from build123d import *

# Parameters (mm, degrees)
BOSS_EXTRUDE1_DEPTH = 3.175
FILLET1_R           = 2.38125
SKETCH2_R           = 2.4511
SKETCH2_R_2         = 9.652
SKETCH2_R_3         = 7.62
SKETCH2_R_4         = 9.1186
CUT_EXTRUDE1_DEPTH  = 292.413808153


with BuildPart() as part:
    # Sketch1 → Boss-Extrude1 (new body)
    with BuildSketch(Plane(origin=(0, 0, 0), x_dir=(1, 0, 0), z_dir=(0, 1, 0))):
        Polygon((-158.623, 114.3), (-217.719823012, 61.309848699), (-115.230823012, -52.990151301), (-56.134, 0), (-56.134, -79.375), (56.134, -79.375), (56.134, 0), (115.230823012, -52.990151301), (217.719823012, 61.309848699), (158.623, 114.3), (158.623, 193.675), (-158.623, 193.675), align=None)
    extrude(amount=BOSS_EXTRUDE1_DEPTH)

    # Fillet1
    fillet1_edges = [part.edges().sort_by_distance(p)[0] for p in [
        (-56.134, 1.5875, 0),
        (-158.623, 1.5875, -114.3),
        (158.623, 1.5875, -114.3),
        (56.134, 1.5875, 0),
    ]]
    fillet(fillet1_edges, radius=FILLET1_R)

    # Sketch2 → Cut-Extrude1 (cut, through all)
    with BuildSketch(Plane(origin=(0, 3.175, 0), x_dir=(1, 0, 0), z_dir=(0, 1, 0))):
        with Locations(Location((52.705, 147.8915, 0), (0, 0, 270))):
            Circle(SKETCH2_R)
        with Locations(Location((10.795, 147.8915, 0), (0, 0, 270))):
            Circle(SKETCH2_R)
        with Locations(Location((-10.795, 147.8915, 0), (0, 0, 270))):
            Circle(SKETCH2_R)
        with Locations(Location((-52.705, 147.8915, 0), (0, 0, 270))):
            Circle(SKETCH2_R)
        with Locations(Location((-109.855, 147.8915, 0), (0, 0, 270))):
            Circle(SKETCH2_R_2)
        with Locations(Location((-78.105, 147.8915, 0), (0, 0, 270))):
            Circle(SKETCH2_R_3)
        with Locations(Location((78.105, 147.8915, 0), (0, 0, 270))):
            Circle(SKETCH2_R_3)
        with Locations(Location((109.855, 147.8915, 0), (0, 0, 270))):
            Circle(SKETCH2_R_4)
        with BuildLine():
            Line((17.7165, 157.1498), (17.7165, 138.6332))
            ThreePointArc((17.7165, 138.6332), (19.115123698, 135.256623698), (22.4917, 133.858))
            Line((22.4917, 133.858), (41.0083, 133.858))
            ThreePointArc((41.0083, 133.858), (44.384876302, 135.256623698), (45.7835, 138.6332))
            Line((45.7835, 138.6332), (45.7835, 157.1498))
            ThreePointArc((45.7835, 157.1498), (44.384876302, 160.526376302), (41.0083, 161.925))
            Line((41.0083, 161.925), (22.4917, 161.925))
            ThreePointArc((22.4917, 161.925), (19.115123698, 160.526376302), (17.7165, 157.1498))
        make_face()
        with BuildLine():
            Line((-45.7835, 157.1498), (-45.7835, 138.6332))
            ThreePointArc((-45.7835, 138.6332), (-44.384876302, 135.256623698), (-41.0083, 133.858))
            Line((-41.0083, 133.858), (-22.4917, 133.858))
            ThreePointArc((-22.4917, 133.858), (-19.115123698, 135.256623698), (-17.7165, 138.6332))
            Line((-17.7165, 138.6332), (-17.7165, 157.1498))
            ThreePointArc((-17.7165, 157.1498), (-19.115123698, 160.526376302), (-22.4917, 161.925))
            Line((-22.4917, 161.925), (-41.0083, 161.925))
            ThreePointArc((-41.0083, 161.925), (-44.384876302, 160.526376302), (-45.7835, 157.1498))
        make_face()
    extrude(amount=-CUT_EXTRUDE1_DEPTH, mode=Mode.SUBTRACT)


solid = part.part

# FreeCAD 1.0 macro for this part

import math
import FreeCAD as App
import Part
import Sketcher

V = App.Vector
Q = App.Units.Quantity


def edges_at(feature, points):
    """Names of the edges that pass closest to the given points."""
    edges = feature.Shape.Edges
    near = lambda p: min(range(len(edges)), key=lambda i: edges[i].distToShape(Part.Vertex(*p))[0])
    return sorted({f"Edge{near(p) + 1}" for p in points})

doc = App.newDocument("Part")
body = doc.addObject("PartDesign::Body", "Body")

sketch1 = doc.addObject("Sketcher::SketchObject", "Sketch")
body.addObject(sketch1)
sketch1.AttachmentSupport = (doc.XZ_Plane, [""])
sketch1.MapMode = "FlatFace"
sketch1.addGeometry(Part.LineSegment(V(-159, -114, 0), V(-218, -61, 0)), False)
sketch1.addGeometry(Part.LineSegment(V(-218, -61, 0), V(-115, 53, 0)), False)
sketch1.addGeometry(Part.LineSegment(V(-115, 53, 0), V(-56, 0, 0)), False)
sketch1.addGeometry(Part.LineSegment(V(-56, 0, 0), V(-56, 79, 0)), False)
sketch1.addGeometry(Part.LineSegment(V(-56, 79, 0), V(56, 79, 0)), False)
sketch1.addGeometry(Part.LineSegment(V(56, 79, 0), V(56, 0, 0)), False)
sketch1.addGeometry(Part.LineSegment(V(56, 0, 0), V(115, 53, 0)), False)
sketch1.addGeometry(Part.LineSegment(V(115, 53, 0), V(218, -61, 0)), False)
sketch1.addGeometry(Part.LineSegment(V(218, -61, 0), V(159, -114, 0)), False)
sketch1.addGeometry(Part.LineSegment(V(159, -114, 0), V(159, -194, 0)), False)
sketch1.addGeometry(Part.LineSegment(V(159, -194, 0), V(-159, -194, 0)), False)
sketch1.addGeometry(Part.LineSegment(V(-159, -194, 0), V(-159, -114, 0)), False)
sketch1.addConstraint(Sketcher.Constraint("Coincident", 0, 2, 1, 1))
sketch1.addConstraint(Sketcher.Constraint("Coincident", 1, 2, 2, 1))
sketch1.addConstraint(Sketcher.Constraint("Coincident", 2, 2, 3, 1))
sketch1.addConstraint(Sketcher.Constraint("Coincident", 3, 2, 4, 1))
sketch1.addConstraint(Sketcher.Constraint("Coincident", 4, 2, 5, 1))
sketch1.addConstraint(Sketcher.Constraint("Coincident", 5, 2, 6, 1))
sketch1.addConstraint(Sketcher.Constraint("Coincident", 6, 2, 7, 1))
sketch1.addConstraint(Sketcher.Constraint("Coincident", 7, 2, 8, 1))
sketch1.addConstraint(Sketcher.Constraint("Coincident", 8, 2, 9, 1))
sketch1.addConstraint(Sketcher.Constraint("Coincident", 9, 2, 10, 1))
sketch1.addConstraint(Sketcher.Constraint("Coincident", 10, 2, 11, 1))
sketch1.addConstraint(Sketcher.Constraint("Coincident", 11, 2, 0, 1))
sketch1.addConstraint(Sketcher.Constraint("Vertical", 3))
sketch1.addConstraint(Sketcher.Constraint("Horizontal", 4))
sketch1.addConstraint(Sketcher.Constraint("Vertical", 5))
sketch1.addConstraint(Sketcher.Constraint("Vertical", 9))
sketch1.addConstraint(Sketcher.Constraint("Horizontal", 10))
sketch1.addConstraint(Sketcher.Constraint("Vertical", 11))
sketch1.addConstraint(Sketcher.Constraint("Symmetric", 2, 2, 5, 2, -1, 1))
sketch1.addConstraint(Sketcher.Constraint("Symmetric", 1, 2, 6, 2, -2))
sketch1.addConstraint(Sketcher.Constraint("Symmetric", 0, 2, 7, 2, -2))
sketch1.addConstraint(Sketcher.Constraint("Symmetric", 8, 2, 11, 2, -2))
sketch1.addConstraint(Sketcher.Constraint("PointOnObject", 2, 2, -1))
sketch1.addConstraint(Sketcher.Constraint("Perpendicular", 0, 1))
sketch1.addConstraint(Sketcher.Constraint("Perpendicular", 1, 2))
sketch1.addConstraint(Sketcher.Constraint("Equal", 5, 9))
sketch1.addConstraint(Sketcher.Constraint("Equal", 0, 2))
sketch1.addConstraint(Sketcher.Constraint("DistanceX", 4, 1, 4, 2, Q("4.42 in")))
sketch1.addConstraint(Sketcher.Constraint("DistanceX", 10, 2, 10, 1, Q("12.49 in")))
sketch1.addConstraint(Sketcher.Constraint("DistanceY", 8, 2, -1, 1, Q("4.5 in")))
sketch1.addConstraint(Sketcher.Constraint("DistanceY", 3, 1, 3, 2, Q("3.125 in")))
sketch1.addConstraint(Sketcher.Constraint("Distance", 0, Q("3.125 in")))
pad1 = doc.addObject("PartDesign::Pad", "Pad")
body.addObject(pad1)
pad1.Profile = sketch1
pad1.Length = Q("0.125 in")
pad1.Reversed = True
doc.recompute()

fillet = doc.addObject("PartDesign::Fillet", "Fillet")
body.addObject(fillet)
fillet.Base = (pad1, edges_at(pad1, [
    (-56.134, 1.587, 0),
    (-158.623, 1.587, -114.3),
    (158.623, 1.587, -114.3),
    (56.134, 1.587, 0),
]))
fillet.Radius = Q("0.09375 in")

sketch2 = doc.addObject("Sketcher::SketchObject", "Sketch001")
body.addObject(sketch2)
sketch2.AttachmentSupport = (doc.XZ_Plane, [""])
sketch2.MapMode = "FlatFace"
sketch2.AttachmentOffset = App.Placement(V(0, 0, -0.125 * 25.4), App.Rotation())
sketch2.addGeometry(Part.Circle(V(52.7, -147.9, 0), V(0, 0, 1), 2.5), False)
sketch2.addGeometry(Part.Circle(V(10.8, -147.9, 0), V(0, 0, 1), 2.5), False)
sketch2.addGeometry(Part.Circle(V(-10.8, -147.9, 0), V(0, 0, 1), 2.5), False)
sketch2.addGeometry(Part.Circle(V(-52.7, -147.9, 0), V(0, 0, 1), 2.5), False)
sketch2.addGeometry(Part.Circle(V(-109.9, -147.9, 0), V(0, 0, 1), 9.7), False)
sketch2.addGeometry(Part.Circle(V(-78.1, -147.9, 0), V(0, 0, 1), 7.6), False)
sketch2.addGeometry(Part.Circle(V(78.1, -147.9, 0), V(0, 0, 1), 7.6), False)
sketch2.addGeometry(Part.Circle(V(109.9, -147.9, 0), V(0, 0, 1), 9.1), False)
sketch2.addGeometry(Part.LineSegment(V(17.7, -157.1, 0), V(17.7, -138.6, 0)), False)
sketch2.addGeometry(Part.ArcOfCircle(Part.Circle(V(22.5, -138.6, 0), V(0, 0, 1), 4.8), math.radians(90), math.radians(180)), False)
sketch2.addGeometry(Part.LineSegment(V(22.5, -133.9, 0), V(41, -133.9, 0)), False)
sketch2.addGeometry(Part.ArcOfCircle(Part.Circle(V(41, -138.6, 0), V(0, 0, 1), 4.8), math.radians(0), math.radians(90)), False)
sketch2.addGeometry(Part.LineSegment(V(45.8, -138.6, 0), V(45.8, -157.1, 0)), False)
sketch2.addGeometry(Part.ArcOfCircle(Part.Circle(V(41, -157.1, 0), V(0, 0, 1), 4.8), math.radians(-90), math.radians(0)), False)
sketch2.addGeometry(Part.LineSegment(V(41, -161.9, 0), V(22.5, -161.9, 0)), False)
sketch2.addGeometry(Part.ArcOfCircle(Part.Circle(V(22.5, -157.1, 0), V(0, 0, 1), 4.8), math.radians(180), math.radians(270)), False)
sketch2.addGeometry(Part.LineSegment(V(-45.8, -157.1, 0), V(-45.8, -138.6, 0)), False)
sketch2.addGeometry(Part.ArcOfCircle(Part.Circle(V(-41, -138.6, 0), V(0, 0, 1), 4.8), math.radians(90), math.radians(180)), False)
sketch2.addGeometry(Part.LineSegment(V(-41, -133.9, 0), V(-22.5, -133.9, 0)), False)
sketch2.addGeometry(Part.ArcOfCircle(Part.Circle(V(-22.5, -138.6, 0), V(0, 0, 1), 4.8), math.radians(0), math.radians(90)), False)
sketch2.addGeometry(Part.LineSegment(V(-17.7, -138.6, 0), V(-17.7, -157.1, 0)), False)
sketch2.addGeometry(Part.ArcOfCircle(Part.Circle(V(-22.5, -157.1, 0), V(0, 0, 1), 4.8), math.radians(-90), math.radians(0)), False)
sketch2.addGeometry(Part.LineSegment(V(-22.5, -161.9, 0), V(-41, -161.9, 0)), False)
sketch2.addGeometry(Part.ArcOfCircle(Part.Circle(V(-41, -157.1, 0), V(0, 0, 1), 4.8), math.radians(180), math.radians(270)), False)
sketch2.addConstraint(Sketcher.Constraint("Tangent", 8, 2, 9, 2))
sketch2.addConstraint(Sketcher.Constraint("Tangent", 9, 1, 10, 1))
sketch2.addConstraint(Sketcher.Constraint("Tangent", 10, 2, 11, 2))
sketch2.addConstraint(Sketcher.Constraint("Tangent", 11, 1, 12, 1))
sketch2.addConstraint(Sketcher.Constraint("Tangent", 12, 2, 13, 2))
sketch2.addConstraint(Sketcher.Constraint("Tangent", 13, 1, 14, 1))
sketch2.addConstraint(Sketcher.Constraint("Tangent", 14, 2, 15, 2))
sketch2.addConstraint(Sketcher.Constraint("Tangent", 15, 1, 8, 1))
sketch2.addConstraint(Sketcher.Constraint("Tangent", 16, 2, 17, 2))
sketch2.addConstraint(Sketcher.Constraint("Tangent", 17, 1, 18, 1))
sketch2.addConstraint(Sketcher.Constraint("Tangent", 18, 2, 19, 2))
sketch2.addConstraint(Sketcher.Constraint("Tangent", 19, 1, 20, 1))
sketch2.addConstraint(Sketcher.Constraint("Tangent", 20, 2, 21, 2))
sketch2.addConstraint(Sketcher.Constraint("Tangent", 21, 1, 22, 1))
sketch2.addConstraint(Sketcher.Constraint("Tangent", 22, 2, 23, 2))
sketch2.addConstraint(Sketcher.Constraint("Tangent", 23, 1, 16, 1))
sketch2.addConstraint(Sketcher.Constraint("Vertical", 8))
sketch2.addConstraint(Sketcher.Constraint("Horizontal", 10))
sketch2.addConstraint(Sketcher.Constraint("Vertical", 12))
sketch2.addConstraint(Sketcher.Constraint("Horizontal", 14))
sketch2.addConstraint(Sketcher.Constraint("Vertical", 16))
sketch2.addConstraint(Sketcher.Constraint("Horizontal", 18))
sketch2.addConstraint(Sketcher.Constraint("Vertical", 20))
sketch2.addConstraint(Sketcher.Constraint("Horizontal", 22))
sketch2.addConstraint(Sketcher.Constraint("Equal", 0, 1))
sketch2.addConstraint(Sketcher.Constraint("Equal", 1, 2))
sketch2.addConstraint(Sketcher.Constraint("Equal", 2, 3))
sketch2.addConstraint(Sketcher.Constraint("Equal", 5, 6))
sketch2.addConstraint(Sketcher.Constraint("Equal", 9, 11))
sketch2.addConstraint(Sketcher.Constraint("Equal", 11, 13))
sketch2.addConstraint(Sketcher.Constraint("Equal", 13, 15))
sketch2.addConstraint(Sketcher.Constraint("Equal", 15, 17))
sketch2.addConstraint(Sketcher.Constraint("Equal", 17, 19))
sketch2.addConstraint(Sketcher.Constraint("Equal", 19, 21))
sketch2.addConstraint(Sketcher.Constraint("Equal", 21, 23))
sketch2.addConstraint(Sketcher.Constraint("Symmetric", 1, 3, 2, 3, -2))
sketch2.addConstraint(Sketcher.Constraint("Symmetric", 0, 3, 3, 3, -2))
sketch2.addConstraint(Sketcher.Constraint("Symmetric", 5, 3, 6, 3, -2))
sketch2.addConstraint(Sketcher.Constraint("Symmetric", 4, 3, 7, 3, -2))
sketch2.addConstraint(Sketcher.Constraint("Symmetric", 11, 3, 17, 3, -2))
sketch2.addConstraint(Sketcher.Constraint("Symmetric", 15, 3, 21, 3, -2))
sketch2.addConstraint(Sketcher.Constraint("Horizontal", 0, 3, 1, 3))
sketch2.addConstraint(Sketcher.Constraint("Horizontal", 3, 3, 4, 3))
sketch2.addConstraint(Sketcher.Constraint("Horizontal", 4, 3, 5, 3))
sketch2.addConstraint(Sketcher.Constraint("Equal", 22, 8))
sketch2.addConstraint(Sketcher.Constraint("Diameter", 5, Q("0.6 in")))
sketch2.addConstraint(Sketcher.Constraint("Diameter", 4, Q("0.76 in")))
sketch2.addConstraint(Sketcher.Constraint("Diameter", 0, Q("0.193 in")))
sketch2.addConstraint(Sketcher.Constraint("Diameter", 7, Q("0.718 in")))
sketch2.addConstraint(Sketcher.Constraint("Radius", 9, Q("0.188 in")))
sketch2.addConstraint(Sketcher.Constraint("DistanceX", 5, 3, 3, 3, Q("1 in")))
sketch2.addConstraint(Sketcher.Constraint("DistanceX", 2, 3, 0, 3, Q("2.5 in")))
sketch2.addConstraint(Sketcher.Constraint("DistanceX", 4, 3, 2, 3, Q("3.9 in")))
sketch2.addConstraint(Sketcher.Constraint("DistanceX", 17, 3, 9, 3, Q("2.5 in")))
sketch2.addConstraint(Sketcher.Constraint("DistanceX", 10, 1, 10, 2, Q("0.729 in")))
sketch2.addConstraint(Sketcher.Constraint("DistanceY", 9, 1, -1, 1, Q("5.27 in")))
sketch2.addConstraint(Sketcher.Constraint("DistanceX", 1, 3, 0, 3, Q("1.65 in")))
sketch2.addConstraint(Sketcher.Constraint("DistanceY", 0, 3, -1, 1, Q("5.8225 in")))
pocket1 = doc.addObject("PartDesign::Pocket", "Pocket")
body.addObject(pocket1)
pocket1.Profile = sketch2
pocket1.Type = "ThroughAll"
pocket1.Reversed = True

doc.recompute()
